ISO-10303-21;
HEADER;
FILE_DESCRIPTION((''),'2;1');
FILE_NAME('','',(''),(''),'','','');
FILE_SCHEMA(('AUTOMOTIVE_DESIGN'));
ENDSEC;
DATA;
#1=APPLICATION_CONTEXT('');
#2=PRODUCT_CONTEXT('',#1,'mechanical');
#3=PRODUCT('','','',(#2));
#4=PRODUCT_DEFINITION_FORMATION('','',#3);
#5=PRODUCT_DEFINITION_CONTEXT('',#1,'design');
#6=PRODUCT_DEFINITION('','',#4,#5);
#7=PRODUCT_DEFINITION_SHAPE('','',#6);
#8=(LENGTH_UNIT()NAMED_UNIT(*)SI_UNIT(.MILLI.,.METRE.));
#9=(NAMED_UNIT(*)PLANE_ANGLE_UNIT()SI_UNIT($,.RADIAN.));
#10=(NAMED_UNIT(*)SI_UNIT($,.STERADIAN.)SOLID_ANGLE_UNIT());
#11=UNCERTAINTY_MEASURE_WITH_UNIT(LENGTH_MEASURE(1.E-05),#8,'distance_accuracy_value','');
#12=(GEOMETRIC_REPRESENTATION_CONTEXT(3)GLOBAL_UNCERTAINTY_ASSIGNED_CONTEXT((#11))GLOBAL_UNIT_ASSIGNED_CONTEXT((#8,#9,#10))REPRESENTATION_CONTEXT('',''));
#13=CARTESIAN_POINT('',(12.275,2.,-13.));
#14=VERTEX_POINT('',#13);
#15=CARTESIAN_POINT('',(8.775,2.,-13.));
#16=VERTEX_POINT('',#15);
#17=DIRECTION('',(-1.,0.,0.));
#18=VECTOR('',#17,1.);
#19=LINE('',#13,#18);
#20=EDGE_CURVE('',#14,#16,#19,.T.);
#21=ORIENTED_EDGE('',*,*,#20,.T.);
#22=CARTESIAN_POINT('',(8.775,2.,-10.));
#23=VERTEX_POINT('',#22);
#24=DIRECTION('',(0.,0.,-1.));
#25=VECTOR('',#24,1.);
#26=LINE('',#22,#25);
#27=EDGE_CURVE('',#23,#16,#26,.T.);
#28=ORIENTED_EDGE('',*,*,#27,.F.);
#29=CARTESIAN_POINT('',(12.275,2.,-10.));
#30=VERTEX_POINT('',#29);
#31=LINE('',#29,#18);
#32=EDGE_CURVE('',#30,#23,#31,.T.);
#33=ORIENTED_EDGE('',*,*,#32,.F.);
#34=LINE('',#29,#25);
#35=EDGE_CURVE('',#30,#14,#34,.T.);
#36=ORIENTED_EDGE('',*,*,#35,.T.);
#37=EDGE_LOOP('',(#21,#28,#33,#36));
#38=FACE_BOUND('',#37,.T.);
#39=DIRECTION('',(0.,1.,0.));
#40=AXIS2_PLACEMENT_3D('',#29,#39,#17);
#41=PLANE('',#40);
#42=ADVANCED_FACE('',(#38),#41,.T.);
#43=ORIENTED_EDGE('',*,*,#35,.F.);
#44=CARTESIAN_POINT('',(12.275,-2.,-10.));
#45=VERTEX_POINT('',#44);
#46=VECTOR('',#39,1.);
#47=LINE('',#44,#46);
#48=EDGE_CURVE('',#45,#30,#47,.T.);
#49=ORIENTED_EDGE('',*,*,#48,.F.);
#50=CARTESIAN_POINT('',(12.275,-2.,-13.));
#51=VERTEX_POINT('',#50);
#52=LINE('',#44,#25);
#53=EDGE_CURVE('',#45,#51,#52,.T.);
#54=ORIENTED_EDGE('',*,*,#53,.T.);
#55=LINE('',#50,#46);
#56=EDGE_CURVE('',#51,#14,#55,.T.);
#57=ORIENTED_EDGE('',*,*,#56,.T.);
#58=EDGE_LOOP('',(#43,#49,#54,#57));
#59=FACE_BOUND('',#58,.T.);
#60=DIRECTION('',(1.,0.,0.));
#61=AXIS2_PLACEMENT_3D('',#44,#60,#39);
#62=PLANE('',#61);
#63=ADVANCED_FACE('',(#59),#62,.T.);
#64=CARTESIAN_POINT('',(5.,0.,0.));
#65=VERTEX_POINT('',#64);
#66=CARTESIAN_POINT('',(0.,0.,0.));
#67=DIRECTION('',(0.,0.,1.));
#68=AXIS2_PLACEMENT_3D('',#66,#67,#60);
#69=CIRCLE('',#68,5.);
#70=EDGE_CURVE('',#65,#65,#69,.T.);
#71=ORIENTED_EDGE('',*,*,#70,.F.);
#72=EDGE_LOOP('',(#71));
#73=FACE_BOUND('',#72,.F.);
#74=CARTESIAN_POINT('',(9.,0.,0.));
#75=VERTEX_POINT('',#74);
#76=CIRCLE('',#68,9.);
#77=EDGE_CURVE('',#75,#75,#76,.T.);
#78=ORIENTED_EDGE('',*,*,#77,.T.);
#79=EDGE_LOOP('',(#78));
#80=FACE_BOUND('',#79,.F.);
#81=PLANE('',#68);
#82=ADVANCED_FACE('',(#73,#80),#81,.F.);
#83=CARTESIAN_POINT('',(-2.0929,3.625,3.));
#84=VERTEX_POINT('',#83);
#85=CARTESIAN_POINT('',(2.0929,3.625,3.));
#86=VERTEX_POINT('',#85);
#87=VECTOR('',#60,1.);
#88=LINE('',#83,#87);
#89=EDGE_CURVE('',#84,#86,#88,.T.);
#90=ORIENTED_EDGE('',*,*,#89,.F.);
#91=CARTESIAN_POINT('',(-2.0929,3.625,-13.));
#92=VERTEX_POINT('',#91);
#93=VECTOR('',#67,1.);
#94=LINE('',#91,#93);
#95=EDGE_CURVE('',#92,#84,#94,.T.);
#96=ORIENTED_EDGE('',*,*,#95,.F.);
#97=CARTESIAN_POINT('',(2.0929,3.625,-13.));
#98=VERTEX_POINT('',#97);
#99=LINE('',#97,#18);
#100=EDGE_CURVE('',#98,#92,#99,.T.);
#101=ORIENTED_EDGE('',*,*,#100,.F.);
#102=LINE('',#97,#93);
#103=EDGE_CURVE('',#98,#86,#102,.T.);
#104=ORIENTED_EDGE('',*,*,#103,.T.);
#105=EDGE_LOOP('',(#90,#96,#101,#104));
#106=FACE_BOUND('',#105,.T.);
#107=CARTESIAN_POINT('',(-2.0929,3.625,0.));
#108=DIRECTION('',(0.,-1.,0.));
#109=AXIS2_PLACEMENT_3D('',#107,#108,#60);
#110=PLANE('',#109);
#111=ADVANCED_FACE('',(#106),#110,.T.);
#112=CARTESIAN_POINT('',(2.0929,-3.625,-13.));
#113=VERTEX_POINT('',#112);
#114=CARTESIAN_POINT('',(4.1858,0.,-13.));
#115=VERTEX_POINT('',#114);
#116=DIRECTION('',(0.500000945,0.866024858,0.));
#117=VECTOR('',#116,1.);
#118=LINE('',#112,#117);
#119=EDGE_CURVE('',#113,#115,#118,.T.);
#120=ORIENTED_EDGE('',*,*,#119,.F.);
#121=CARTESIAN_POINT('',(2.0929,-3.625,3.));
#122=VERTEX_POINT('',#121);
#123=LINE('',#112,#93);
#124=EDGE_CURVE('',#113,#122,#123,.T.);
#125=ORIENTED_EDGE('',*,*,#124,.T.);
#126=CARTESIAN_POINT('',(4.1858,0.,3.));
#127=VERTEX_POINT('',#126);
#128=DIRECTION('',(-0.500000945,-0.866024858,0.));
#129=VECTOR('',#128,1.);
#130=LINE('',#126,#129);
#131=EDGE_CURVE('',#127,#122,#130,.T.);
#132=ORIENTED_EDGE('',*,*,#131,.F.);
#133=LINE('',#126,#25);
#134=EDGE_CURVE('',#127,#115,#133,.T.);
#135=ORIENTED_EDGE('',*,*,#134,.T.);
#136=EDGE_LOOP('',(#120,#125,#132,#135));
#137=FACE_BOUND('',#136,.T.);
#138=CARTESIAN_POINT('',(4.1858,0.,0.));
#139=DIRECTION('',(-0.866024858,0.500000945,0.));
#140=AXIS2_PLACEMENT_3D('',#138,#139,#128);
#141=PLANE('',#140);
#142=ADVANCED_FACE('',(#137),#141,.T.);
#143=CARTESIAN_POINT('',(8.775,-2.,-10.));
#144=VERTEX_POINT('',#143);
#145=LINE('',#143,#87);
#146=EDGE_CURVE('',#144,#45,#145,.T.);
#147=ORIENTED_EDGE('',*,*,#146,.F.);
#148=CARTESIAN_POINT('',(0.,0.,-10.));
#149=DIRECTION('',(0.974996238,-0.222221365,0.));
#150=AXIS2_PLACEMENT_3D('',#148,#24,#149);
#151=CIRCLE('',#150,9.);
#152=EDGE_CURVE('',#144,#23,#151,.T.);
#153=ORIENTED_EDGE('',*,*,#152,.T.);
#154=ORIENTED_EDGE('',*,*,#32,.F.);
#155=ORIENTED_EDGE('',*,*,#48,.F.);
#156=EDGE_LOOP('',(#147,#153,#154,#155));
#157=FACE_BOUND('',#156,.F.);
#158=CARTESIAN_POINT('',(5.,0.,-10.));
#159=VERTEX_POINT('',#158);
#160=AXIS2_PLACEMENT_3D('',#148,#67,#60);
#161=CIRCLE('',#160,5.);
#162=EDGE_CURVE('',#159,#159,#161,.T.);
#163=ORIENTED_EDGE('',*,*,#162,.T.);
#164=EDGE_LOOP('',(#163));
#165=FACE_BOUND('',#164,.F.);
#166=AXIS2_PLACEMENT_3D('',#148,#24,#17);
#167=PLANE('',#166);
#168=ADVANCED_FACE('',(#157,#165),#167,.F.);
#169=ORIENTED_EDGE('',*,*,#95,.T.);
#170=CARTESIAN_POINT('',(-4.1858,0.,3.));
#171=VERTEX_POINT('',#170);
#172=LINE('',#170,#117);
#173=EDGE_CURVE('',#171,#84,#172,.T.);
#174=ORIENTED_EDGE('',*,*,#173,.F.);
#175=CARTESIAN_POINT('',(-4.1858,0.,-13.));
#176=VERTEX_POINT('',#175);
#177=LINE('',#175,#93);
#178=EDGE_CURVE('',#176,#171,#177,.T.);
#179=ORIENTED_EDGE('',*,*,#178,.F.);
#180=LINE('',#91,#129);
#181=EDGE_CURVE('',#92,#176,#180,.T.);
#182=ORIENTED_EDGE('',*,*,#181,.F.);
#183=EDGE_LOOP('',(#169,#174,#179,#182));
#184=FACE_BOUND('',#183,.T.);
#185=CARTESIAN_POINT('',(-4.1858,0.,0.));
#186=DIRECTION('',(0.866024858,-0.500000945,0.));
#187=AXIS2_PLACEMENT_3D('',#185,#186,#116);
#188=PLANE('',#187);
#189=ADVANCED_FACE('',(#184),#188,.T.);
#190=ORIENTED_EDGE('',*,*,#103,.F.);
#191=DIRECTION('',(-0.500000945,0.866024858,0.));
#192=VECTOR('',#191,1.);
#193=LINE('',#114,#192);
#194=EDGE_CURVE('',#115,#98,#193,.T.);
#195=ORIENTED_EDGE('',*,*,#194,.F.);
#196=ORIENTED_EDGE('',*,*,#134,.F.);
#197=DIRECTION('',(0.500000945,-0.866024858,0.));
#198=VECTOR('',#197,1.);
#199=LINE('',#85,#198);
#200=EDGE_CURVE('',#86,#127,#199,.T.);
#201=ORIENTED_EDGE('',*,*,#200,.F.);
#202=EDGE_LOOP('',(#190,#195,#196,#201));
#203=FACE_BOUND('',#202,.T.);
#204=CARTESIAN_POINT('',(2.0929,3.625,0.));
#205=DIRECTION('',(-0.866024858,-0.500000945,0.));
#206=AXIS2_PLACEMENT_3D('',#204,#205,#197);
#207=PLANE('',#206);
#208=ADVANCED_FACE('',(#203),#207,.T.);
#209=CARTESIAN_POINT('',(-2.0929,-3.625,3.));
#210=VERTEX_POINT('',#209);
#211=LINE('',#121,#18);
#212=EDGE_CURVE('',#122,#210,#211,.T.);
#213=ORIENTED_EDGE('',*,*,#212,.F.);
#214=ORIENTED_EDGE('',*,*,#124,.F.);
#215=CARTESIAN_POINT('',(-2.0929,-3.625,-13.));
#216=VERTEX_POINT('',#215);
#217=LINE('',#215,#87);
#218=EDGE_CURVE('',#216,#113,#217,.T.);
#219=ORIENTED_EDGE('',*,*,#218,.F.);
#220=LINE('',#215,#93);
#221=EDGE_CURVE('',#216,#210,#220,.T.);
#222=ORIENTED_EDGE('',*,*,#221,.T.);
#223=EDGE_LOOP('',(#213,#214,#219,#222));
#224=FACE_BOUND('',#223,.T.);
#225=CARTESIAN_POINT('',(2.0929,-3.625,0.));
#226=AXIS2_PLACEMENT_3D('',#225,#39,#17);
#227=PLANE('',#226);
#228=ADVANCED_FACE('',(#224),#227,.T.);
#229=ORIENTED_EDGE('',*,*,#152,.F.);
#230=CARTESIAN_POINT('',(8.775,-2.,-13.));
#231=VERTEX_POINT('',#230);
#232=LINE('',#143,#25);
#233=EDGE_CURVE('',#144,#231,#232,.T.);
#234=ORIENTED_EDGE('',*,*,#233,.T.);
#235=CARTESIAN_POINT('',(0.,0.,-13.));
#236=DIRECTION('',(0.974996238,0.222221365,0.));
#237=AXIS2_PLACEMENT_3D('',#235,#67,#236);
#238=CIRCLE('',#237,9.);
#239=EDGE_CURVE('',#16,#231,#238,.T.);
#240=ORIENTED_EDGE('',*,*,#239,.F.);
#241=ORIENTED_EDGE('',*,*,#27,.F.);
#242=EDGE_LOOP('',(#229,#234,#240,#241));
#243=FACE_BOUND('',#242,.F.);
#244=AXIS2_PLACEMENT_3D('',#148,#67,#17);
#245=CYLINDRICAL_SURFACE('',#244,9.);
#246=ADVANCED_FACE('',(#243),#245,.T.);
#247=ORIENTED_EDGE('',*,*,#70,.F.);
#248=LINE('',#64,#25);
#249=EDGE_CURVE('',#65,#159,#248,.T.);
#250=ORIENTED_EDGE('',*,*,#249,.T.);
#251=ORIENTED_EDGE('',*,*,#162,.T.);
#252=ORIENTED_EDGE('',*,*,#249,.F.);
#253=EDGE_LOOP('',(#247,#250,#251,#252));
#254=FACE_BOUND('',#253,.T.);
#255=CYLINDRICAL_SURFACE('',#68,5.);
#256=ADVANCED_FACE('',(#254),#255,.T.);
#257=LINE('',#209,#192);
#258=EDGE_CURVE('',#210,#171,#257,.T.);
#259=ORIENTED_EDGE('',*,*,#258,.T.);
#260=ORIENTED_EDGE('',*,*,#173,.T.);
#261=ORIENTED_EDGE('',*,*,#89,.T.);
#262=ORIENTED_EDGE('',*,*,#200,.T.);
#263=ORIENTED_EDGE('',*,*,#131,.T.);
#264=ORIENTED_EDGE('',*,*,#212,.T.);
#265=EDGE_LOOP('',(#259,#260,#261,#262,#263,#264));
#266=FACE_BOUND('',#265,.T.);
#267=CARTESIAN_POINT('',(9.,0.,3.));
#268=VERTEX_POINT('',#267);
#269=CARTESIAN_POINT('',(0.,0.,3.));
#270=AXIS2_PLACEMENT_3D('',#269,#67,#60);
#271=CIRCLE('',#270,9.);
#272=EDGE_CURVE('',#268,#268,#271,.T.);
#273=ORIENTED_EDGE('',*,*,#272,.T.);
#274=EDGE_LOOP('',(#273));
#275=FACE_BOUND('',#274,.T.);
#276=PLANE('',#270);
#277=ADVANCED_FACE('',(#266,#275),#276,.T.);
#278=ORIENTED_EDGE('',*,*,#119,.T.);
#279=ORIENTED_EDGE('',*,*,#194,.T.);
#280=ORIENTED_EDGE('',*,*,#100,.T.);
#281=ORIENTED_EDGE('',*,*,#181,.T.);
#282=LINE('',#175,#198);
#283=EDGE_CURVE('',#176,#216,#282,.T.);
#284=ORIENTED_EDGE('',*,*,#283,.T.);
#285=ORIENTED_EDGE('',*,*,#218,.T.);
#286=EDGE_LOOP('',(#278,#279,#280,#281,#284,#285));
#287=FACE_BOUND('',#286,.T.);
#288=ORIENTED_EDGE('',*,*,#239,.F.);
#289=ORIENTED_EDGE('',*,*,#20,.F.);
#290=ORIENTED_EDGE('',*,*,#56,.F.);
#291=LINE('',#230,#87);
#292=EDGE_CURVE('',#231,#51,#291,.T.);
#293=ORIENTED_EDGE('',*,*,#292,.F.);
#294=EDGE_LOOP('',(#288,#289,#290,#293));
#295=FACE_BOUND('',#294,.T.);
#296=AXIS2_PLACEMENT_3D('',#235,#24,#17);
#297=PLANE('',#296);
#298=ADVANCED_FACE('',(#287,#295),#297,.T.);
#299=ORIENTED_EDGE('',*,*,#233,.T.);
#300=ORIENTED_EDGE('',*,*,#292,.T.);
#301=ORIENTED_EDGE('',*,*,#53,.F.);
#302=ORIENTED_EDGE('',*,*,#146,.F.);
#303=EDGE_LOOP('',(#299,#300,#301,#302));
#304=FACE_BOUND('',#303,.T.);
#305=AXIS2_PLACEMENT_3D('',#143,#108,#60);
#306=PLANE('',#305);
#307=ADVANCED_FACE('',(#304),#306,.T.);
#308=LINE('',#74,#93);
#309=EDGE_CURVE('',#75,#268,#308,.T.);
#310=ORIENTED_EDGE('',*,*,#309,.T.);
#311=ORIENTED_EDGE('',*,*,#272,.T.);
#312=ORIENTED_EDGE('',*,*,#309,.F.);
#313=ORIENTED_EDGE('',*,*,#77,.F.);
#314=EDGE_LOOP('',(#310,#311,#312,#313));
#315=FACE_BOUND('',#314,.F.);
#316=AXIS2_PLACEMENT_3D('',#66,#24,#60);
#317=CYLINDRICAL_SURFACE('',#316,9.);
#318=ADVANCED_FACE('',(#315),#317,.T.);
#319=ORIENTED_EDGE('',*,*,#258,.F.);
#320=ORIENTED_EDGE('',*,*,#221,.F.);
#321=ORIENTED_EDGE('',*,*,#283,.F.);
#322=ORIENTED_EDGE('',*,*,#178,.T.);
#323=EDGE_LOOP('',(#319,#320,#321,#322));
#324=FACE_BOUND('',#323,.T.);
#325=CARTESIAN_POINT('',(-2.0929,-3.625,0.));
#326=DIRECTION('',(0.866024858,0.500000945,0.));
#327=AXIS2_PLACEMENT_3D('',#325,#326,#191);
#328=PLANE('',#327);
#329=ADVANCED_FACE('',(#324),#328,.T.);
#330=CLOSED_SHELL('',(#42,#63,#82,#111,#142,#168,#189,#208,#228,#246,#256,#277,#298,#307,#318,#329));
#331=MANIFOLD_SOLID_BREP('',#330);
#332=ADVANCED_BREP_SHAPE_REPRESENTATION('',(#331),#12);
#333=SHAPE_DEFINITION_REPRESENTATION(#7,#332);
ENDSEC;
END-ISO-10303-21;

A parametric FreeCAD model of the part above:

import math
import FreeCAD as App
import Part
import Sketcher
from FreeCAD import Vector
Q = App.Units.Quantity

doc = App.newDocument("Part")
params = doc.addObject("Spreadsheet::Sheet", "Params")
for row, (alias, value) in enumerate([
    ("sketch1_diameter", "10 mm"),
    ("pad1_length", "10 mm"),
    ("sketch2_diameter", "18 mm"),
    ("pad2_length", "3 mm"),
    ("sketch3_height", "4 mm"),
    ("sketch3_width", "3.5 mm"),
    ("sketch3_radius", "9 mm"),
    ("pad3_length", "3 mm"),
], start=1):
    params.set(f"A{row}", alias)
    params.set(f"B{row}", "=" + value)
    params.setAlias(f"B{row}", alias)

body = doc.addObject("PartDesign::Body", "Body")

sketch1 = body.newObject("Sketcher::SketchObject", "Sketch")
sketch1.AttachmentSupport = (doc.getObject("XY_Plane"), [""])
sketch1.MapMode = "FlatFace"
sketch1.addGeometry(Part.Circle(Vector(0, 0, 0), Vector(0, 0, 1), 5), False)
sketch1.addGeometry(Part.LineSegment(Vector(2.1, 3.6, 0), Vector(4.2, 0, 0)), False)
sketch1.addGeometry(Part.LineSegment(Vector(4.2, 0, 0), Vector(2.1, -3.6, 0)), False)
sketch1.addGeometry(Part.LineSegment(Vector(2.1, -3.6, 0), Vector(-2.1, -3.6, 0)), False)
sketch1.addGeometry(Part.LineSegment(Vector(-2.1, -3.6, 0), Vector(-4.2, 0, 0)), False)
sketch1.addGeometry(Part.LineSegment(Vector(-4.2, 0, 0), Vector(-2.1, 3.6, 0)), False)
sketch1.addGeometry(Part.LineSegment(Vector(-2.1, 3.6, 0), Vector(2.1, 3.6, 0)), False)
sketch1.addConstraint(Sketcher.Constraint("Coincident", 1, 2, 2, 1))
sketch1.addConstraint(Sketcher.Constraint("Coincident", 2, 2, 3, 1))
sketch1.addConstraint(Sketcher.Constraint("Coincident", 3, 2, 4, 1))
sketch1.addConstraint(Sketcher.Constraint("Coincident", 4, 2, 5, 1))
sketch1.addConstraint(Sketcher.Constraint("Coincident", 5, 2, 6, 1))
sketch1.addConstraint(Sketcher.Constraint("Coincident", 6, 2, 1, 1))
sketch1.addConstraint(Sketcher.Constraint("Horizontal", 3))
sketch1.addConstraint(Sketcher.Constraint("Horizontal", 6))
sketch1.addConstraint(Sketcher.Constraint("Coincident", 0, 3, -1, 1))
sketch1.addConstraint(Sketcher.Constraint("Symmetric", 1, 2, 4, 2, -1, 1))
sketch1.addConstraint(Sketcher.Constraint("Symmetric", 2, 2, 5, 2, -1, 1))
sketch1.addConstraint(Sketcher.Constraint("PointOnObject", 1, 2, -1))
sketch1.addConstraint(Sketcher.Constraint("Parallel", 1, 4))
sketch1.addConstraint(Sketcher.Constraint("Vertical", 3, 2, 5, 2))
sketch1.addConstraint(Sketcher.Constraint("Diameter", 0, Q("10 mm")))
sketch1.addConstraint(Sketcher.Constraint("Angle", 1, Q("-60 deg")))
sketch1.addConstraint(Sketcher.Constraint("DistanceY", 3, 2, 5, 2, Q("7.25 mm")))
sketch1.addConstraint(Sketcher.Constraint("DistanceX", 3, 2, 3, 1, Q("4.1858 mm")))
sketch1.setExpression("Constraints[14]", "Params.sketch1_diameter")
pad1 = body.newObject("PartDesign::Pad", "Pad")
pad1.Profile = sketch1
pad1.setExpression("Length", "Params.pad1_length")
pad1.Reversed = True

sketch2 = body.newObject("Sketcher::SketchObject", "Sketch001")
sketch2.AttachmentSupport = (doc.getObject("XY_Plane"), [""])
sketch2.MapMode = "FlatFace"
sketch2.addGeometry(Part.Circle(Vector(0, 0, 0), Vector(0, 0, 1), 9), False)
sketch2.addGeometry(Part.LineSegment(Vector(4.2, 0, 0), Vector(2.1, -3.6, 0)), False)
sketch2.addGeometry(Part.LineSegment(Vector(2.1, -3.6, 0), Vector(-2.1, -3.6, 0)), False)
sketch2.addGeometry(Part.LineSegment(Vector(-2.1, -3.6, 0), Vector(-4.2, 0, 0)), False)
sketch2.addGeometry(Part.LineSegment(Vector(-4.2, 0, 0), Vector(-2.1, 3.6, 0)), False)
sketch2.addGeometry(Part.LineSegment(Vector(-2.1, 3.6, 0), Vector(2.1, 3.6, 0)), False)
sketch2.addGeometry(Part.LineSegment(Vector(2.1, 3.6, 0), Vector(4.2, 0, 0)), False)
sketch2.addConstraint(Sketcher.Constraint("Coincident", 1, 2, 2, 1))
sketch2.addConstraint(Sketcher.Constraint("Coincident", 2, 2, 3, 1))
sketch2.addConstraint(Sketcher.Constraint("Coincident", 3, 2, 4, 1))
sketch2.addConstraint(Sketcher.Constraint("Coincident", 4, 2, 5, 1))
sketch2.addConstraint(Sketcher.Constraint("Coincident", 5, 2, 6, 1))
sketch2.addConstraint(Sketcher.Constraint("Coincident", 6, 2, 1, 1))
sketch2.addConstraint(Sketcher.Constraint("Horizontal", 2))
sketch2.addConstraint(Sketcher.Constraint("Horizontal", 5))
sketch2.addConstraint(Sketcher.Constraint("Coincident", 0, 3, -1, 1))
sketch2.addConstraint(Sketcher.Constraint("Symmetric", 1, 2, 4, 2, -1, 1))
sketch2.addConstraint(Sketcher.Constraint("Symmetric", 3, 2, 6, 2, -1, 1))
sketch2.addConstraint(Sketcher.Constraint("PointOnObject", 3, 2, -1))
sketch2.addConstraint(Sketcher.Constraint("Parallel", 3, 6))
sketch2.addConstraint(Sketcher.Constraint("Vertical", 2, 2, 4, 2))
sketch2.addConstraint(Sketcher.Constraint("Diameter", 0, Q("18 mm")))
sketch2.addConstraint(Sketcher.Constraint("Angle", 1, Q("-120 deg")))
sketch2.addConstraint(Sketcher.Constraint("DistanceY", 2, 2, 4, 2, Q("7.25 mm")))
sketch2.addConstraint(Sketcher.Constraint("DistanceX", 2, 2, 2, 1, Q("4.1858 mm")))
sketch2.setExpression("Constraints[14]", "Params.sketch2_diameter")
pad2 = body.newObject("PartDesign::Pad", "Pad001")
pad2.Profile = sketch2
pad2.setExpression("Length", "Params.pad2_length")

sketch3 = body.newObject("Sketcher::SketchObject", "Sketch002")
sketch3.AttachmentSupport = (doc.getObject("XY_Plane"), [""])
sketch3.MapMode = "FlatFace"
sketch3.AttachmentOffset = App.Placement(Vector(0, 0, -10), App.Rotation())
sketch3.addGeometry(Part.ArcOfCircle(Part.Circle(Vector(0, 0, 0), Vector(0, 0, 1), 9), math.radians(13), math.radians(347)), False)
sketch3.addGeometry(Part.LineSegment(Vector(8.8, 2, 0), Vector(12.3, 2, 0)), False)
sketch3.addGeometry(Part.LineSegment(Vector(12.3, 2, 0), Vector(12.3, -2, 0)), False)
sketch3.addGeometry(Part.LineSegment(Vector(12.3, -2, 0), Vector(8.8, -2, 0)), False)
sketch3.addGeometry(Part.LineSegment(Vector(4.2, 0, 0), Vector(2.1, 3.6, 0)), False)
sketch3.addGeometry(Part.LineSegment(Vector(2.1, 3.6, 0), Vector(-2.1, 3.6, 0)), False)
sketch3.addGeometry(Part.LineSegment(Vector(-2.1, 3.6, 0), Vector(-4.2, 0, 0)), False)
sketch3.addGeometry(Part.LineSegment(Vector(-4.2, 0, 0), Vector(-2.1, -3.6, 0)), False)
sketch3.addGeometry(Part.LineSegment(Vector(-2.1, -3.6, 0), Vector(2.1, -3.6, 0)), False)
sketch3.addGeometry(Part.LineSegment(Vector(2.1, -3.6, 0), Vector(4.2, 0, 0)), False)
sketch3.addConstraint(Sketcher.Constraint("Coincident", 0, 1, 1, 1))
sketch3.addConstraint(Sketcher.Constraint("Coincident", 1, 2, 2, 1))
sketch3.addConstraint(Sketcher.Constraint("Coincident", 2, 2, 3, 1))
sketch3.addConstraint(Sketcher.Constraint("Coincident", 3, 2, 0, 2))
sketch3.addConstraint(Sketcher.Constraint("Coincident", 4, 2, 5, 1))
sketch3.addConstraint(Sketcher.Constraint("Coincident", 5, 2, 6, 1))
sketch3.addConstraint(Sketcher.Constraint("Coincident", 6, 2, 7, 1))
sketch3.addConstraint(Sketcher.Constraint("Coincident", 7, 2, 8, 1))
sketch3.addConstraint(Sketcher.Constraint("Coincident", 8, 2, 9, 1))
sketch3.addConstraint(Sketcher.Constraint("Coincident", 9, 2, 4, 1))
sketch3.addConstraint(Sketcher.Constraint("Horizontal", 1))
sketch3.addConstraint(Sketcher.Constraint("Vertical", 2))
sketch3.addConstraint(Sketcher.Constraint("Horizontal", 3))
sketch3.addConstraint(Sketcher.Constraint("Horizontal", 5))
sketch3.addConstraint(Sketcher.Constraint("Horizontal", 8))
sketch3.addConstraint(Sketcher.Constraint("Coincident", 0, 3, -1, 1))
sketch3.addConstraint(Sketcher.Constraint("Symmetric", 4, 2, 7, 2, -1, 1))
sketch3.addConstraint(Sketcher.Constraint("Symmetric", 6, 2, 9, 2, -1, 1))
sketch3.addConstraint(Sketcher.Constraint("PointOnObject", 6, 2, -1))
sketch3.addConstraint(Sketcher.Constraint("Parallel", 6, 9))
sketch3.addConstraint(Sketcher.Constraint("Vertical", 0, 1, 3, 2))
sketch3.addConstraint(Sketcher.Constraint("Vertical", 5, 2, 7, 2))
sketch3.addConstraint(Sketcher.Constraint("DistanceY", 2, 2, 2, 1, Q("4 mm")))
sketch3.addConstraint(Sketcher.Constraint("DistanceX", 1, 1, 1, 2, Q("3.5 mm")))
sketch3.addConstraint(Sketcher.Constraint("Radius", 0, Q("9 mm")))
sketch3.addConstraint(Sketcher.Constraint("Angle", 4, Q("120 deg")))
sketch3.addConstraint(Sketcher.Constraint("DistanceY", 7, 2, 5, 2, Q("7.25 mm")))
sketch3.addConstraint(Sketcher.Constraint("DistanceX", 5, 2, 5, 1, Q("4.1858 mm")))
sketch3.setExpression("Constraints[22]", "Params.sketch3_height")
sketch3.setExpression("Constraints[23]", "Params.sketch3_width")
sketch3.setExpression("Constraints[24]", "Params.sketch3_radius")
pad3 = body.newObject("PartDesign::Pad", "Pad002")
pad3.Profile = sketch3
pad3.setExpression("Length", "Params.pad3_length")
pad3.Reversed = True

doc.recompute()
